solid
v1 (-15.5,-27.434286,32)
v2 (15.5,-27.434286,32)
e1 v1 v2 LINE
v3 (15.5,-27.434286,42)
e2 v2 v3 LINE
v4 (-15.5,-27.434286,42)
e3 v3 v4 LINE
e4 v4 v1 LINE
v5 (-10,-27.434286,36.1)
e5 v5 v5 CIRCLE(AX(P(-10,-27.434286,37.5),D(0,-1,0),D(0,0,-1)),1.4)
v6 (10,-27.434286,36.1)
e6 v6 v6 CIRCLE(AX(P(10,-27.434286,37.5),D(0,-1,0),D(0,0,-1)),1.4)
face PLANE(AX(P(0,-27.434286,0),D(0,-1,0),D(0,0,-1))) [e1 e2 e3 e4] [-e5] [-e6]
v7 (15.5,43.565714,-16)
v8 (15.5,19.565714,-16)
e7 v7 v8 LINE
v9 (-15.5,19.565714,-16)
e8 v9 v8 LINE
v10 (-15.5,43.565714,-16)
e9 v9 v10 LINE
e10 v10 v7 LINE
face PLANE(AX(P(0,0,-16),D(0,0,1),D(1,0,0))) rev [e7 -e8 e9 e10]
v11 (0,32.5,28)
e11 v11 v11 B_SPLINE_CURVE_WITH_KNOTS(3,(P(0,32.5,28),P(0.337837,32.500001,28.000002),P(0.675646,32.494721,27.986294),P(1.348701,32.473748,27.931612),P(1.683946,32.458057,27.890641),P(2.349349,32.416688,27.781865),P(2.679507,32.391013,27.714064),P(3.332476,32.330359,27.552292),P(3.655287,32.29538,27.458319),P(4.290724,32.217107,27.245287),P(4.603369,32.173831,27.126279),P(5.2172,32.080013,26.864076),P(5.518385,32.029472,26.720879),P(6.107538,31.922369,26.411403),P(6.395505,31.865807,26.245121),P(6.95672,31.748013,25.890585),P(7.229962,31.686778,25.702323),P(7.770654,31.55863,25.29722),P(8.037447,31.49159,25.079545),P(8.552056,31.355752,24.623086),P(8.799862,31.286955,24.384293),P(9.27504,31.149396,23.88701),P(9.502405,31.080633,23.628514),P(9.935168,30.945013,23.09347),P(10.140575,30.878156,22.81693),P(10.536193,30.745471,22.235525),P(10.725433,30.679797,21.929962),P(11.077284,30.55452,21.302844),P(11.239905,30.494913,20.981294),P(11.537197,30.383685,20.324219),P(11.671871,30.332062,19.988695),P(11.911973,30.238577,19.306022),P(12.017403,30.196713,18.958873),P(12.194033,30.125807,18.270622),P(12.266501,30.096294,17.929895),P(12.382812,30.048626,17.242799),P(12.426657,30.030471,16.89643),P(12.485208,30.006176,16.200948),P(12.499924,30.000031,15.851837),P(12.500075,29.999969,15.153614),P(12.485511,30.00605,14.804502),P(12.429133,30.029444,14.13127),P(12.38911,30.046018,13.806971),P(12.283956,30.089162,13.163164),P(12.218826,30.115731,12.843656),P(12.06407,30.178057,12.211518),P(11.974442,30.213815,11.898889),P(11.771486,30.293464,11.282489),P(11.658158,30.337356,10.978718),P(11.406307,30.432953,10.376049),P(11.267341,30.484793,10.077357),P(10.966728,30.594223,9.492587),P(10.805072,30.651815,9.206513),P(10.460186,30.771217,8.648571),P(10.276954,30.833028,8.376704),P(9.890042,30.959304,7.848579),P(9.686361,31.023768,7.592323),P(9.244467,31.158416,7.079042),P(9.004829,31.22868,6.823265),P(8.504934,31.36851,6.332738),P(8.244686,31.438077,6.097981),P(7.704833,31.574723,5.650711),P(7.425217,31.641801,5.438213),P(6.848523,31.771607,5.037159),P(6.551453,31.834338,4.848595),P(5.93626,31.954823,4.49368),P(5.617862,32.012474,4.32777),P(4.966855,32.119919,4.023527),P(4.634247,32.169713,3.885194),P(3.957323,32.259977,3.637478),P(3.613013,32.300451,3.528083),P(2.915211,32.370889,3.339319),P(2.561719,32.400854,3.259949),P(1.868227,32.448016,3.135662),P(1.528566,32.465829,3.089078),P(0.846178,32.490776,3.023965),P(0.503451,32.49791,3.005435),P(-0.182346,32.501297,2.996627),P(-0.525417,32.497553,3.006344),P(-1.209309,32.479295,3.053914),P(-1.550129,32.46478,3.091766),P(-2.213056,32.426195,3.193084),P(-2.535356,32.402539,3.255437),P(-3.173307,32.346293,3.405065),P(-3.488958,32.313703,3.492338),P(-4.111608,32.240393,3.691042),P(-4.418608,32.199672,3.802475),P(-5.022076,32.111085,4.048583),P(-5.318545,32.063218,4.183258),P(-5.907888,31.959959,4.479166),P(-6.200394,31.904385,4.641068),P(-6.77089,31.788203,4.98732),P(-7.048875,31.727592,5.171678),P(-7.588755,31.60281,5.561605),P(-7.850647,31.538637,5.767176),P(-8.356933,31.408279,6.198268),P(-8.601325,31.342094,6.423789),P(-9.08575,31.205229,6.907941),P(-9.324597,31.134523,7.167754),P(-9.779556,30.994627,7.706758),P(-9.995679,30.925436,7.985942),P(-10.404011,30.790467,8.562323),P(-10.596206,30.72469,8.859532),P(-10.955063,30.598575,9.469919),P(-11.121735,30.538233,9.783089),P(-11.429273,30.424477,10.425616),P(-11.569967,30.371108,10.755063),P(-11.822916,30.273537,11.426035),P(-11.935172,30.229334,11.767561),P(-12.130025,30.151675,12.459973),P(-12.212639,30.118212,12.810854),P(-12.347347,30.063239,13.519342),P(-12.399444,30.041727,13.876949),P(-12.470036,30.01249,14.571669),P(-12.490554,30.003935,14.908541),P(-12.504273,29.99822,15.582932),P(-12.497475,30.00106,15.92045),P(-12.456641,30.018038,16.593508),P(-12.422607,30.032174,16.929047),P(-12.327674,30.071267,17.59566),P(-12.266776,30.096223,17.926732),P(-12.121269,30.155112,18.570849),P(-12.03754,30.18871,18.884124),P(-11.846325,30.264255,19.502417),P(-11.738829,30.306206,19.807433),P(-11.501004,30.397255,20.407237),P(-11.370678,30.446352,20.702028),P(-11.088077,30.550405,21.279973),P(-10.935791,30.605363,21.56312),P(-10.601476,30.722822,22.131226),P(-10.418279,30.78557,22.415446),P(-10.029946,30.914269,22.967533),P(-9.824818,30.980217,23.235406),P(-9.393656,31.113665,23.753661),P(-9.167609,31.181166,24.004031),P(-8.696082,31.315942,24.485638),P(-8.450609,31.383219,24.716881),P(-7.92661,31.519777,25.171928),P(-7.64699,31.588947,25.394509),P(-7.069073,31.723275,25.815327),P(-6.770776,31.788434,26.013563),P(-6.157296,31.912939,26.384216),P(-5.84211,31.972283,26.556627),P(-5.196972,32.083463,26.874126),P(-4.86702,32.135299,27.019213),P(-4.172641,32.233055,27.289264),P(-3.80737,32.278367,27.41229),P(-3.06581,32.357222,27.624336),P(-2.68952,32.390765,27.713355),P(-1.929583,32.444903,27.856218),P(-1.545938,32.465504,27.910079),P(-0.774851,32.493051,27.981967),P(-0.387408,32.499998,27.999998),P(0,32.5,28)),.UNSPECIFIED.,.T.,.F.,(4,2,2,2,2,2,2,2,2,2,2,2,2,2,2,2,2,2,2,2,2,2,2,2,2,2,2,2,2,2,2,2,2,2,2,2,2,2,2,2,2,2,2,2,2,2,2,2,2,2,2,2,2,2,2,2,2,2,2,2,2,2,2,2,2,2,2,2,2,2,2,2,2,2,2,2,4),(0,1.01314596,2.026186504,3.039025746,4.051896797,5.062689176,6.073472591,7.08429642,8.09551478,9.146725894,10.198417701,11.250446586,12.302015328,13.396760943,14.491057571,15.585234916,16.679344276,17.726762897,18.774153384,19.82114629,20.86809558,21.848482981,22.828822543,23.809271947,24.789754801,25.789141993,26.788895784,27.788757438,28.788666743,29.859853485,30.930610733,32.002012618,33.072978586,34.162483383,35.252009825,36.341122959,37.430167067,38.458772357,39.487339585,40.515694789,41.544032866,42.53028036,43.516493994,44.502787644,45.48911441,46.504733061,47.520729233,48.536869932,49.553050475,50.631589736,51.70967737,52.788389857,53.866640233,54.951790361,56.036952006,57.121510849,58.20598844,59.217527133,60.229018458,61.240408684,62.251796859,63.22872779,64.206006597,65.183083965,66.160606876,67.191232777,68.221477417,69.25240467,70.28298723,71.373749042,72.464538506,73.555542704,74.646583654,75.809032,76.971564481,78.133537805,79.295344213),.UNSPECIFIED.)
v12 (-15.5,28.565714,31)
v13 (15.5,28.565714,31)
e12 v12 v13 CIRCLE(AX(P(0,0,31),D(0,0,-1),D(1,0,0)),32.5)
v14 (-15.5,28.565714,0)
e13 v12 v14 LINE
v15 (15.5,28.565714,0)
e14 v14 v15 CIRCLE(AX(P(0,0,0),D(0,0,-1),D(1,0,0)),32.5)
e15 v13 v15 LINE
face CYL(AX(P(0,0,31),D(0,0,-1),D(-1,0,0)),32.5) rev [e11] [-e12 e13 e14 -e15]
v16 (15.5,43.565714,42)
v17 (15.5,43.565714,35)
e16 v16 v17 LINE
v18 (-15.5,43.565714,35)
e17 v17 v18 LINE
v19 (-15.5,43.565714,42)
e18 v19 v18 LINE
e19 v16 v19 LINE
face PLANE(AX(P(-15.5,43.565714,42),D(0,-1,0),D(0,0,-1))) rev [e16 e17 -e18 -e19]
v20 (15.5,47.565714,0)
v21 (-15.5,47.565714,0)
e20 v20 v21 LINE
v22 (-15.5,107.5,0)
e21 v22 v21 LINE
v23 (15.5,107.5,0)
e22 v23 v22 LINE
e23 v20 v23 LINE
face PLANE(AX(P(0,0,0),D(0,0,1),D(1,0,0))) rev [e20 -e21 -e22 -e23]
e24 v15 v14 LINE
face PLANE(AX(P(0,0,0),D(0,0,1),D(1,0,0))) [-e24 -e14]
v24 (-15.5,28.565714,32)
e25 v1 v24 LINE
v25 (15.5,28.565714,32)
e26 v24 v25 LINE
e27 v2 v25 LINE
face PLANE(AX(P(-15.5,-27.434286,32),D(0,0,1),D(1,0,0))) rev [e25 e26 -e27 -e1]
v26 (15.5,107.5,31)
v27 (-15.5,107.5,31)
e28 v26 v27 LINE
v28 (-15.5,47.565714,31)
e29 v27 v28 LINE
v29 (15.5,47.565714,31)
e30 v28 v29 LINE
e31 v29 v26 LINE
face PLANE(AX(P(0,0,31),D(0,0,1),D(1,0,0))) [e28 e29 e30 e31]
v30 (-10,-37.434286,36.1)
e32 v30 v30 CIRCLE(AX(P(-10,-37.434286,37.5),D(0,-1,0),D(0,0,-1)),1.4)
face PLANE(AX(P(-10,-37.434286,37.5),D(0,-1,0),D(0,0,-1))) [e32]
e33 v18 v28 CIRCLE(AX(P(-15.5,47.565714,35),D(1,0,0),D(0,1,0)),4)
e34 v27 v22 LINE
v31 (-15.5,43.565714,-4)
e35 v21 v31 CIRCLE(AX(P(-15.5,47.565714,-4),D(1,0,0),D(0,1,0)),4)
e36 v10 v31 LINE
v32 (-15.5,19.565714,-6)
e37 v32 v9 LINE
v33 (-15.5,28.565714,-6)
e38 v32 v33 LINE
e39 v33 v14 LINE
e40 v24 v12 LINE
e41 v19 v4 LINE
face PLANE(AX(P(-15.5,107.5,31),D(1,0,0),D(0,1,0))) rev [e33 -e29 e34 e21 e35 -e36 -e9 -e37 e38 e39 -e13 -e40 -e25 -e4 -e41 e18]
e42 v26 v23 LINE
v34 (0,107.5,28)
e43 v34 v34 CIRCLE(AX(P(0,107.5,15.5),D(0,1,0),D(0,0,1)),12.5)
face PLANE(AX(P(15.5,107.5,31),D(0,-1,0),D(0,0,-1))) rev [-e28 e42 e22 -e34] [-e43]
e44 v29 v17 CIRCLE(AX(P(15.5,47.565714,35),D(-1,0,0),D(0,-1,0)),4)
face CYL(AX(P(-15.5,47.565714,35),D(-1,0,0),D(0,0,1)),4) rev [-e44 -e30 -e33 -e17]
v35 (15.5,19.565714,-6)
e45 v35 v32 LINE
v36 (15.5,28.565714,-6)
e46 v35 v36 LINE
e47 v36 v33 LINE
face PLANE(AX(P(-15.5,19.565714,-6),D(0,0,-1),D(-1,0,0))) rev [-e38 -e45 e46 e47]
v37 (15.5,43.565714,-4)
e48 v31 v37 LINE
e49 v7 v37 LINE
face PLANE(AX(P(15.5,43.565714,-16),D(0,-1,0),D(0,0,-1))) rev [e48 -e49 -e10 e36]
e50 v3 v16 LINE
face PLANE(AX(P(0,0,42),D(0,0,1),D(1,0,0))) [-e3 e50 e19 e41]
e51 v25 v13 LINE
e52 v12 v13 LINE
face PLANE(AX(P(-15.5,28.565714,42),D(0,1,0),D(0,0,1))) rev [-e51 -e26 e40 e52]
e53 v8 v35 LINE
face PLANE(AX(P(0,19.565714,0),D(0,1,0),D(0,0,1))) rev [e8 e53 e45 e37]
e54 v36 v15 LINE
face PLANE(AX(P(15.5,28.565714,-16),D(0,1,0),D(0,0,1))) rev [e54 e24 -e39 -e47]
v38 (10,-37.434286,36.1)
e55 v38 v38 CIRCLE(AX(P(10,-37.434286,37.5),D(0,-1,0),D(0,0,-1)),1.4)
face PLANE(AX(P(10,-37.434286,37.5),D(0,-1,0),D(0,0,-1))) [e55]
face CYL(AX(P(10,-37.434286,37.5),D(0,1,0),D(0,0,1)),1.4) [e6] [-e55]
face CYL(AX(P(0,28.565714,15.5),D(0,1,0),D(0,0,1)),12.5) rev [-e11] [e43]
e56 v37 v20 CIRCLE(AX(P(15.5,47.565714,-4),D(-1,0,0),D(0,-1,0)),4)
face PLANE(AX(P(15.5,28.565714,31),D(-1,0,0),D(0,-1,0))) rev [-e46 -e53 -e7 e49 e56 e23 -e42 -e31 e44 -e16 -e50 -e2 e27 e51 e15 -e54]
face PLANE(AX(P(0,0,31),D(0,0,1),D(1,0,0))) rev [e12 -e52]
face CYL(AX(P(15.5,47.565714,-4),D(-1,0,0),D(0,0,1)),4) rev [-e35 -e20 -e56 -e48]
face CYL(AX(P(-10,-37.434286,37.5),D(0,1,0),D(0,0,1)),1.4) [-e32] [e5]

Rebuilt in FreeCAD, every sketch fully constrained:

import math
import FreeCAD as App
import Part
import Sketcher


def edges_at(feature, points):
    """Names of the edges that pass closest to the given points."""
    edges = feature.Shape.Edges
    near = lambda p: min(range(len(edges)), key=lambda i: edges[i].distToShape(Part.Vertex(*p))[0])
    return sorted({f"Edge{near(p) + 1}" for p in points})

doc = App.newDocument("Part")
body = doc.addObject("PartDesign::Body", "Body")

# Sketch on XY plane
sketch1 = body.newObject("Sketcher::SketchObject", "Sketch")
sketch1.AttachmentSupport = (doc.getObject("XY_Plane"), [""])
sketch1.MapMode = "FlatFace"
sketch1.addGeometry([
    Part.LineSegment(App.Vector(-15.5, 107.5, 0), App.Vector(-15.5, 28.565714, 0)),
    Part.ArcOfCircle(Part.Circle(App.Vector(0, 0, 0), App.Vector(0, 0, 1), 32.5), math.radians(61.515365), math.radians(118.484635)),
    Part.LineSegment(App.Vector(15.5, 28.565714, 0), App.Vector(15.5, 107.5, 0)),
    Part.LineSegment(App.Vector(15.5, 107.5, 0), App.Vector(-15.5, 107.5, 0)),
], False)
sketch1.addConstraint([
    Sketcher.Constraint("Coincident", 0, 2, 1, 2),
    Sketcher.Constraint("Coincident", 1, 1, 2, 1),
    Sketcher.Constraint("Coincident", 2, 2, 3, 1),
    Sketcher.Constraint("Coincident", 3, 2, 0, 1),
    Sketcher.Constraint("Vertical", 0),
    Sketcher.Constraint("Vertical", 2),
    Sketcher.Constraint("Horizontal", 3),
    Sketcher.Constraint("Coincident", 1, 3, -1, 1),
    Sketcher.Constraint("Horizontal", 0, 2, 1, 1),
    Sketcher.Constraint("Radius", 1, 32.5),
    Sketcher.Constraint("DistanceX", 3, 2, 3, 1, 31.0),
    Sketcher.Constraint("DistanceY", -1, 1, 2, 2, 107.5),
])
pad1 = body.newObject("PartDesign::Pad", "Pad")
pad1.Profile = sketch1
pad1.Length = 31

# Sketch on XZ plane
sketch2 = body.newObject("Sketcher::SketchObject", "Sketch001")
sketch2.AttachmentSupport = (doc.getObject("XZ_Plane"), [""])
sketch2.MapMode = "FlatFace"
sketch2.AttachmentOffset = App.Placement(App.Vector(0, 0, -107.5), App.Rotation())
sketch2.addGeometry(Part.Circle(App.Vector(0, 15.5, 0), App.Vector(0, 0, 1), 12.5), False)
sketch2.addConstraint([
    Sketcher.Constraint("PointOnObject", 0, 3, -2),
    Sketcher.Constraint("Diameter", 0, 25.0),
    Sketcher.Constraint("DistanceY", -1, 1, 0, 3, 15.5),
])
pocket1 = body.newObject("PartDesign::Pocket", "Pocket")
pocket1.Profile = sketch2
pocket1.Type = "ThroughAll"
pocket1.Reversed = True

# Sketch on XY plane
sketch3 = body.newObject("Sketcher::SketchObject", "Sketch002")
sketch3.AttachmentSupport = (doc.getObject("XY_Plane"), [""])
sketch3.MapMode = "FlatFace"
sketch3.AttachmentOffset = App.Placement(App.Vector(0, 0, 31), App.Rotation())
sketch3.addGeometry([
    Part.LineSegment(App.Vector(-15.5, 43.565714, 0), App.Vector(-15.5, 28.565714, 0)),
    Part.LineSegment(App.Vector(-15.5, 28.565714, 0), App.Vector(15.5, 28.565714, 0)),
    Part.LineSegment(App.Vector(15.5, 28.565714, 0), App.Vector(15.5, 43.565714, 0)),
    Part.LineSegment(App.Vector(15.5, 43.565714, 0), App.Vector(-15.5, 43.565714, 0)),
], False)
sketch3.addConstraint([
    Sketcher.Constraint("Coincident", 0, 2, 1, 1),
    Sketcher.Constraint("Coincident", 1, 2, 2, 1),
    Sketcher.Constraint("Coincident", 2, 2, 3, 1),
    Sketcher.Constraint("Coincident", 3, 2, 0, 1),
    Sketcher.Constraint("Vertical", 0),
    Sketcher.Constraint("Horizontal", 1),
    Sketcher.Constraint("Vertical", 2),
    Sketcher.Constraint("Horizontal", 3),
    Sketcher.Constraint("DistanceX", 1, 1, 1, 2, 31.0),
    Sketcher.Constraint("DistanceY", 0, 2, 0, 1, 15.0),
    Sketcher.Constraint("DistanceX", 0, 2, -1, 1, 15.5),
    Sketcher.Constraint("DistanceY", -1, 1, 0, 2, 28.565714),
])
pad2 = body.newObject("PartDesign::Pad", "Pad001")
pad2.Profile = sketch3
pad2.Length = 11

# Sketch on XZ plane
sketch4 = body.newObject("Sketcher::SketchObject", "Sketch003")
sketch4.AttachmentSupport = (doc.getObject("XZ_Plane"), [""])
sketch4.MapMode = "FlatFace"
sketch4.AttachmentOffset = App.Placement(App.Vector(0, 0, -28.565714), App.Rotation())
sketch4.addGeometry([
    Part.LineSegment(App.Vector(-15.5, 42, 0), App.Vector(-15.5, 32, 0)),
    Part.LineSegment(App.Vector(-15.5, 32, 0), App.Vector(15.5, 32, 0)),
    Part.LineSegment(App.Vector(15.5, 32, 0), App.Vector(15.5, 42, 0)),
    Part.LineSegment(App.Vector(15.5, 42, 0), App.Vector(-15.5, 42, 0)),
], False)
sketch4.addConstraint([
    Sketcher.Constraint("Coincident", 0, 2, 1, 1),
    Sketcher.Constraint("Coincident", 1, 2, 2, 1),
    Sketcher.Constraint("Coincident", 2, 2, 3, 1),
    Sketcher.Constraint("Coincident", 3, 2, 0, 1),
    Sketcher.Constraint("Vertical", 0),
    Sketcher.Constraint("Horizontal", 1),
    Sketcher.Constraint("Vertical", 2),
    Sketcher.Constraint("Horizontal", 3),
    Sketcher.Constraint("DistanceX", 1, 1, 1, 2, 31.0),
    Sketcher.Constraint("DistanceY", 0, 2, 0, 1, 10.0),
    Sketcher.Constraint("DistanceY", -1, 1, 0, 2, 32.0),
    Sketcher.Constraint("DistanceX", 0, 2, -1, 1, 15.5),
])
pad3 = body.newObject("PartDesign::Pad", "Pad002")
pad3.Profile = sketch4
pad3.Length = 56

# Sketch on XZ plane
sketch5 = body.newObject("Sketcher::SketchObject", "Sketch004")
sketch5.AttachmentSupport = (doc.getObject("XZ_Plane"), [""])
sketch5.MapMode = "FlatFace"
sketch5.AttachmentOffset = App.Placement(App.Vector(0, 0, 27.434286), App.Rotation())
sketch5.addGeometry([
    Part.Circle(App.Vector(-10, 37.5, 0), App.Vector(0, 0, 1), 1.4),
    Part.Circle(App.Vector(10, 37.5, 0), App.Vector(0, 0, 1), 1.4),
], False)
sketch5.addConstraint([
    Sketcher.Constraint("Equal", 0, 1),
    Sketcher.Constraint("Symmetric", 0, 3, 1, 3, -2),
    Sketcher.Constraint("Diameter", 0, 2.8),
    Sketcher.Constraint("DistanceX", 0, 3, -1, 1, 10.0),
    Sketcher.Constraint("DistanceY", -1, 1, 0, 3, 37.5),
])
pad4 = body.newObject("PartDesign::Pad", "Pad003")
pad4.Profile = sketch5
pad4.Length = 10

# Sketch on XY plane
sketch6 = body.newObject("Sketcher::SketchObject", "Sketch005")
sketch6.AttachmentSupport = (doc.getObject("XY_Plane"), [""])
sketch6.MapMode = "FlatFace"
sketch6.addGeometry([
    Part.LineSegment(App.Vector(15.5, 43.565714, 0), App.Vector(15.5, 28.565714, 0)),
    Part.LineSegment(App.Vector(15.5, 28.565714, 0), App.Vector(-15.5, 28.565714, 0)),
    Part.LineSegment(App.Vector(-15.5, 28.565714, 0), App.Vector(-15.5, 43.565714, 0)),
    Part.LineSegment(App.Vector(-15.5, 43.565714, 0), App.Vector(15.5, 43.565714, 0)),
], False)
sketch6.addConstraint([
    Sketcher.Constraint("Coincident", 0, 2, 1, 1),
    Sketcher.Constraint("Coincident", 1, 2, 2, 1),
    Sketcher.Constraint("Coincident", 2, 2, 3, 1),
    Sketcher.Constraint("Coincident", 3, 2, 0, 1),
    Sketcher.Constraint("Vertical", 0),
    Sketcher.Constraint("Horizontal", 1),
    Sketcher.Constraint("Vertical", 2),
    Sketcher.Constraint("Horizontal", 3),
    Sketcher.Constraint("DistanceX", 1, 2, 1, 1, 31.0),
    Sketcher.Constraint("DistanceY", 0, 2, 0, 1, 15.0),
    Sketcher.Constraint("DistanceX", -1, 1, 0, 2, 15.5),
    Sketcher.Constraint("DistanceY", -1, 1, 0, 2, 28.565714),
])
pad5 = body.newObject("PartDesign::Pad", "Pad004")
pad5.Profile = sketch6
pad5.Length = 16
pad5.Reversed = True

# Sketch on XZ plane
sketch7 = body.newObject("Sketcher::SketchObject", "Sketch006")
sketch7.AttachmentSupport = (doc.getObject("XZ_Plane"), [""])
sketch7.MapMode = "FlatFace"
sketch7.AttachmentOffset = App.Placement(App.Vector(0, 0, -28.565714), App.Rotation())
sketch7.addGeometry([
    Part.LineSegment(App.Vector(-15.5, -6, 0), App.Vector(-15.5, -16, 0)),
    Part.LineSegment(App.Vector(-15.5, -16, 0), App.Vector(15.5, -16, 0)),
    Part.LineSegment(App.Vector(15.5, -16, 0), App.Vector(15.5, -6, 0)),
    Part.LineSegment(App.Vector(15.5, -6, 0), App.Vector(-15.5, -6, 0)),
], False)
sketch7.addConstraint([
    Sketcher.Constraint("Coincident", 0, 2, 1, 1),
    Sketcher.Constraint("Coincident", 1, 2, 2, 1),
    Sketcher.Constraint("Coincident", 2, 2, 3, 1),
    Sketcher.Constraint("Coincident", 3, 2, 0, 1),
    Sketcher.Constraint("Vertical", 0),
    Sketcher.Constraint("Horizontal", 1),
    Sketcher.Constraint("Vertical", 2),
    Sketcher.Constraint("Horizontal", 3),
    Sketcher.Constraint("DistanceX", 1, 1, 1, 2, 31.0),
    Sketcher.Constraint("DistanceY", 0, 2, 0, 1, 10.0),
    Sketcher.Constraint("DistanceY", 0, 2, -1, 1, 16.0),
    Sketcher.Constraint("DistanceX", 0, 2, -1, 1, 15.5),
])
pad6 = body.newObject("PartDesign::Pad", "Pad005")
pad6.Profile = sketch7
pad6.Length = 9
doc.recompute()

fillet = body.newObject("PartDesign::Fillet", "Fillet")
fillet.Base = (pad6, edges_at(pad6, [(0, 43.566, 31), (0, 43.566, 0)]))
fillet.Radius = 4

doc.recompute()
